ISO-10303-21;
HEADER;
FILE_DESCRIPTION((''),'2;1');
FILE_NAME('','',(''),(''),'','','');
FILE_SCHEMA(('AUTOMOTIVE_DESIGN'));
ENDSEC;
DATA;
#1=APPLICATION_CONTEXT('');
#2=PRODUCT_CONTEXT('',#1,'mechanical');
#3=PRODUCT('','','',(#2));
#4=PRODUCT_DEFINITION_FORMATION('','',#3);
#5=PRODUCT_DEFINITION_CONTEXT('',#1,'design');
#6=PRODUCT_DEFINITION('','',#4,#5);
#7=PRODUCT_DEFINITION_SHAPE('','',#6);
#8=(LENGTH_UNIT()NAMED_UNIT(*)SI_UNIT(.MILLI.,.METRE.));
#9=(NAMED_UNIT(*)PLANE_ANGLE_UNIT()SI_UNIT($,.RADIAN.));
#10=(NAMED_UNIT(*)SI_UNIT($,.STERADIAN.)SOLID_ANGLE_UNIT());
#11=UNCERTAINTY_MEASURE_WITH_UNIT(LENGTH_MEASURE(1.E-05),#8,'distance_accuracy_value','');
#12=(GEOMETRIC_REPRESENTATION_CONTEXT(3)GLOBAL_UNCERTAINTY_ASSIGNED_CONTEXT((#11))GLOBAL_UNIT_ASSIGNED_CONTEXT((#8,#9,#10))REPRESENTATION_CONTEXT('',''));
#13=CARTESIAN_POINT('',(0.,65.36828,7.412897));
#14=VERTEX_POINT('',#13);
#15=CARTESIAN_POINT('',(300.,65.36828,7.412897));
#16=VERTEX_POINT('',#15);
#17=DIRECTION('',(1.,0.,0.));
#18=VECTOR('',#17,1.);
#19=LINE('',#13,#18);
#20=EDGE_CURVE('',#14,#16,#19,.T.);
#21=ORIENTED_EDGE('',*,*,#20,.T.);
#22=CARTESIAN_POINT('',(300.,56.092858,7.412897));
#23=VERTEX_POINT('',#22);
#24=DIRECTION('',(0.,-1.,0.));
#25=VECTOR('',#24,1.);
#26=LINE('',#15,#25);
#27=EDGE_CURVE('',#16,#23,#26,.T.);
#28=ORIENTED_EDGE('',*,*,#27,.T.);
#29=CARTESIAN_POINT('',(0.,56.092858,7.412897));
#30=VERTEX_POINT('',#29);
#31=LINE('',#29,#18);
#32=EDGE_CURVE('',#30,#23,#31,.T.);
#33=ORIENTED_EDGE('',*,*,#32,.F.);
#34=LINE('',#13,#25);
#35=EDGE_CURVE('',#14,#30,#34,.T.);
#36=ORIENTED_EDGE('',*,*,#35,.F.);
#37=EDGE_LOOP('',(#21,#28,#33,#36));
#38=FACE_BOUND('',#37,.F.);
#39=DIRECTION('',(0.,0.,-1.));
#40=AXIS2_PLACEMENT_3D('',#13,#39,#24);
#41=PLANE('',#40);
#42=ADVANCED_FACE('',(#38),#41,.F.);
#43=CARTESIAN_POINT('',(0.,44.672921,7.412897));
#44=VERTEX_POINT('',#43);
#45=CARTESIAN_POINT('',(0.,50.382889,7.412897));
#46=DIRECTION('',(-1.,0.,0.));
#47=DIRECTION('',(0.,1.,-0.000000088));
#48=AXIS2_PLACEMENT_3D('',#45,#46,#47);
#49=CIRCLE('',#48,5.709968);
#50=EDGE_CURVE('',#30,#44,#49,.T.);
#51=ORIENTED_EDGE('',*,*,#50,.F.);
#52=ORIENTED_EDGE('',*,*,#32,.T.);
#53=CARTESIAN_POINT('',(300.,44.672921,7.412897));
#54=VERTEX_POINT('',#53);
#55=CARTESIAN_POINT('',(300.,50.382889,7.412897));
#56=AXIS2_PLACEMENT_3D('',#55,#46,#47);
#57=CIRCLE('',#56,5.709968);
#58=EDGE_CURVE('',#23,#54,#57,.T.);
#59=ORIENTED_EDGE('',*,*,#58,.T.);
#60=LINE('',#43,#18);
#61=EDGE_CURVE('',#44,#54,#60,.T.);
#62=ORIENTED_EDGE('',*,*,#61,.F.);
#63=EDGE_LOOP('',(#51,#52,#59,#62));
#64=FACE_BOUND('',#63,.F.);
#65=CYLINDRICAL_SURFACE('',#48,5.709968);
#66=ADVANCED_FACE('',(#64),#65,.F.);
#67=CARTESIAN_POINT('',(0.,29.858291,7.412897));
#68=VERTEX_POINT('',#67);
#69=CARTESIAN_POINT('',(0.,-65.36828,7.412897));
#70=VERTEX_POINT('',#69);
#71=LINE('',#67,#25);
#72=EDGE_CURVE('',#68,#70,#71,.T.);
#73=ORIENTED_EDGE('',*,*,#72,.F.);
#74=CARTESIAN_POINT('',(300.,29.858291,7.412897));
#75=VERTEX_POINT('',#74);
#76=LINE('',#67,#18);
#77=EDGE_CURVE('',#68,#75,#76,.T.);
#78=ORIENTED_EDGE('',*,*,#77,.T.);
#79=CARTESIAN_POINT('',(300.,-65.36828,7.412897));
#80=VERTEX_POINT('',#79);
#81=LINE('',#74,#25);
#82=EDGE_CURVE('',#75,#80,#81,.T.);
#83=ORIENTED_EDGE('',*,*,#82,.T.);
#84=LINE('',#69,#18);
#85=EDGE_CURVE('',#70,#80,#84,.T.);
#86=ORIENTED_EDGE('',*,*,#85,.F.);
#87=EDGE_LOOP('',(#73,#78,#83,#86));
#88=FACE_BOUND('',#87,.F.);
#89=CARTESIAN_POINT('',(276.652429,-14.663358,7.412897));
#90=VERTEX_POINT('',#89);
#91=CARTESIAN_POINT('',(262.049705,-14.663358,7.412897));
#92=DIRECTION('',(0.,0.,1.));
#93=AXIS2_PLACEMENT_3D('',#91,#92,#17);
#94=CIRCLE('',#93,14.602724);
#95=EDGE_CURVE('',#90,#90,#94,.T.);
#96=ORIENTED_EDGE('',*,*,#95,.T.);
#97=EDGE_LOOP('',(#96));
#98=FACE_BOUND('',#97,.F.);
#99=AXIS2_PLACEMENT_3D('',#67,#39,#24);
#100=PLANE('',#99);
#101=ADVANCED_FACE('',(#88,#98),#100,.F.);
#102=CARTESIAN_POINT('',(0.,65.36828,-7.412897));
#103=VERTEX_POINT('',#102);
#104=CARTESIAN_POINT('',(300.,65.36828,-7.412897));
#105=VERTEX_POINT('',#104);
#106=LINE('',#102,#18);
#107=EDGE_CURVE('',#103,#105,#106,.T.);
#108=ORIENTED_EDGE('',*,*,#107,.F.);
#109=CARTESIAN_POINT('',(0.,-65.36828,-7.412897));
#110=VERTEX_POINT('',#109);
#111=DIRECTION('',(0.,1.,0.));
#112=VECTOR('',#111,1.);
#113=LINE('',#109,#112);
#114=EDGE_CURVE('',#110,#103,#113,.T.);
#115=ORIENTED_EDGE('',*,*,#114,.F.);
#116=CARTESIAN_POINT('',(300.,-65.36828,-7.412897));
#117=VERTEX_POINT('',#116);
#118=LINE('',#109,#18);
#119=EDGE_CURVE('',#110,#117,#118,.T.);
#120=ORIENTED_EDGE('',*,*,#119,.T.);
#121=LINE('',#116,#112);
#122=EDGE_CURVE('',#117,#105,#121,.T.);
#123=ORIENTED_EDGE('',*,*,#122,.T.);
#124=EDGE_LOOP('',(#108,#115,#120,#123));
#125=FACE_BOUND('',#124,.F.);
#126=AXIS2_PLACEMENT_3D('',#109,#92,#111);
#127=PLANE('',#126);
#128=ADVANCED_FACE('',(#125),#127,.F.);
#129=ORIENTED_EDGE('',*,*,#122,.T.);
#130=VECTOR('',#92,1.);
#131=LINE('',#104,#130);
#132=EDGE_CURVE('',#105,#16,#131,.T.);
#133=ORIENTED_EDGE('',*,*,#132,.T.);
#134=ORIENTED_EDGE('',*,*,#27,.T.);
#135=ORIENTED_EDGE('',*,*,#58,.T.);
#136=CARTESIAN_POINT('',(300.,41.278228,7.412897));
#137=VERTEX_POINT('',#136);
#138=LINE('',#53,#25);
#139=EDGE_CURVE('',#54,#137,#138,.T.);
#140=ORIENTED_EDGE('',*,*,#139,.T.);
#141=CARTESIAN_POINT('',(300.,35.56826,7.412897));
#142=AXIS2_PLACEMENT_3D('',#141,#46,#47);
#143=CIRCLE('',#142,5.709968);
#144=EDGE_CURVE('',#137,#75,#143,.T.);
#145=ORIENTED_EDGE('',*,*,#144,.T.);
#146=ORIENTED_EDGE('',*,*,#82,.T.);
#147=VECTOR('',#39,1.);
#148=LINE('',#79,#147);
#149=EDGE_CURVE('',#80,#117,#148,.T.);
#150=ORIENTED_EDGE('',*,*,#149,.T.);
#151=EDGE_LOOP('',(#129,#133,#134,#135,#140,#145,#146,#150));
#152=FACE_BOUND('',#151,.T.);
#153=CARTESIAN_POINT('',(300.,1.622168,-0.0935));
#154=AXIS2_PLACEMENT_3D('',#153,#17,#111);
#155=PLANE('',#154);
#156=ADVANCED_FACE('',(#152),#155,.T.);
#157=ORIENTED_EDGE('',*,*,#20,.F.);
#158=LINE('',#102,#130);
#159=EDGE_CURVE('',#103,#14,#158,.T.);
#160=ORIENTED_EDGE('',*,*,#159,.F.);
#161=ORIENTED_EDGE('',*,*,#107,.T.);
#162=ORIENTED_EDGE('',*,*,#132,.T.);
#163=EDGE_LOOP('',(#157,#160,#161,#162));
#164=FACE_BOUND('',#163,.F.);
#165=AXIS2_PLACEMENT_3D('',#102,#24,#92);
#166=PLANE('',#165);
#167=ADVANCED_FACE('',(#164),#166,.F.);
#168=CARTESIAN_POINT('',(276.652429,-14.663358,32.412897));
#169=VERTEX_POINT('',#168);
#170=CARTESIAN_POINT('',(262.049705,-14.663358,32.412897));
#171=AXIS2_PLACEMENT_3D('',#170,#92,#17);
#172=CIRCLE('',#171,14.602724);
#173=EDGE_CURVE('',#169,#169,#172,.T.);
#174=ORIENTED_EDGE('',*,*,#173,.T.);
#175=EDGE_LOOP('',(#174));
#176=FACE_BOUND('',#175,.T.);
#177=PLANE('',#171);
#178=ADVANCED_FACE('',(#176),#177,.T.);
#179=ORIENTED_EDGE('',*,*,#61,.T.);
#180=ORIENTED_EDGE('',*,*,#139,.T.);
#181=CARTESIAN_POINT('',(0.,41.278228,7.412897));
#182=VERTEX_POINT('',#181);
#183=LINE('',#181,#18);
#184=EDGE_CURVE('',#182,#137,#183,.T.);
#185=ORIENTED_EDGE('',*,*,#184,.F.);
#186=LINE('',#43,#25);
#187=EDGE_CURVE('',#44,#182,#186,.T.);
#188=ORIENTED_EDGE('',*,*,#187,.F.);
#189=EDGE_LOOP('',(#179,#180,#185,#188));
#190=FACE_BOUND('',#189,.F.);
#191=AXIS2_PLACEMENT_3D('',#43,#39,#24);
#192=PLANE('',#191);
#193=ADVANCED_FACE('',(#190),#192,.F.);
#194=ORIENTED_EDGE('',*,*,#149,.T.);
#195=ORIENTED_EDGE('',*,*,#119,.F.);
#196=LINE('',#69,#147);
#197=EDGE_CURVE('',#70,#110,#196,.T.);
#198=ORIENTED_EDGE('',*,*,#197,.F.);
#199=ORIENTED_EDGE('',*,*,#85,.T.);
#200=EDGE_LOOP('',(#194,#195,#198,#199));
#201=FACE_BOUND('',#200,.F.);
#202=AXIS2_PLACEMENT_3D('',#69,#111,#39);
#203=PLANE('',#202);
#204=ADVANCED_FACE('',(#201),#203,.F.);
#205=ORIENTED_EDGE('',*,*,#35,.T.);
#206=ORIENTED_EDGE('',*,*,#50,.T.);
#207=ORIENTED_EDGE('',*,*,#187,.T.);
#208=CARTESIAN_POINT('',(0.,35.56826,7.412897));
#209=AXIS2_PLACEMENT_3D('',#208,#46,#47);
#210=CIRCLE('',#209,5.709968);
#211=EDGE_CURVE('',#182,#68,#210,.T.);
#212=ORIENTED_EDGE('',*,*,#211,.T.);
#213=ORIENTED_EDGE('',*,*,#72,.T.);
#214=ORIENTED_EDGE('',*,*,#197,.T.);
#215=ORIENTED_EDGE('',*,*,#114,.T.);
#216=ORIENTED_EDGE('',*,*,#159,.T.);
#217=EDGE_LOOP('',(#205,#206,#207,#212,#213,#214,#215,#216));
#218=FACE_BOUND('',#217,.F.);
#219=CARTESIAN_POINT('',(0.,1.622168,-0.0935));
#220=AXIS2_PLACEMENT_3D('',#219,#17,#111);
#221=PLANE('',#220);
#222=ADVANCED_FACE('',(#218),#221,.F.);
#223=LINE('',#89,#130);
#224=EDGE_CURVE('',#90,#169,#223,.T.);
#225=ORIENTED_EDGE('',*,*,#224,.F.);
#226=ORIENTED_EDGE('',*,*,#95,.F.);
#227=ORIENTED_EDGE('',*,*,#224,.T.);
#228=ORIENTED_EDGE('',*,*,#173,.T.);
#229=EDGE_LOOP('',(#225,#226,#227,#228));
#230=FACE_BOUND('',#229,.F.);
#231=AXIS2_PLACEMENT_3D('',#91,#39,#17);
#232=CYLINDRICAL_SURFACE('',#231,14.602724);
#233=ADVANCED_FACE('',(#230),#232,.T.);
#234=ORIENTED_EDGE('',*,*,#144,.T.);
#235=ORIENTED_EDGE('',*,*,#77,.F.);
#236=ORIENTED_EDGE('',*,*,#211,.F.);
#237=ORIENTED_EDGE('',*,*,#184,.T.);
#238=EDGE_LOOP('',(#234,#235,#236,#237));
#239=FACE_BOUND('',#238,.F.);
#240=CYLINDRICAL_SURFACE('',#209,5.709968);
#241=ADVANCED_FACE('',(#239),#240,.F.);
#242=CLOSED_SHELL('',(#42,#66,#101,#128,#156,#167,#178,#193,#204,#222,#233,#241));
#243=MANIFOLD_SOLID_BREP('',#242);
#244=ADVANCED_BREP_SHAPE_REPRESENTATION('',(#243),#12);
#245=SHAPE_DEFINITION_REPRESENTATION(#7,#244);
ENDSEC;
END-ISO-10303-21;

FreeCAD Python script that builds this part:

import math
import FreeCAD as App
import Part
import Sketcher

V = App.Vector

doc = App.newDocument("Part")
body = doc.addObject("PartDesign::Body", "Body")

sketch1 = doc.addObject("Sketcher::SketchObject", "Sketch")
body.addObject(sketch1)
sketch1.AttachmentSupport = (doc.YZ_Plane, [""])
sketch1.MapMode = "FlatFace"
sketch1.addGeometry([
    Part.LineSegment(V(29.858291, 7.412897, 0), V(-65.36828, 7.412897, 0)),
    Part.LineSegment(V(-65.36828, 7.412897, 0), V(-65.36828, -7.412897, 0)),
    Part.LineSegment(V(-65.36828, -7.412897, 0), V(65.36828, -7.412897, 0)),
    Part.LineSegment(V(65.36828, -7.412897, 0), V(65.36828, 7.412897, 0)),
    Part.LineSegment(V(65.36828, 7.412897, 0), V(56.092858, 7.412897, 0)),
    Part.ArcOfCircle(Part.Circle(V(50.382889, 7.412897, 0), V(0, 0, 1), 5.709968), math.radians(-179.999995), math.radians(-0.000005)),
    Part.LineSegment(V(44.672921, 7.412897, 0), V(41.278228, 7.412897, 0)),
    Part.ArcOfCircle(Part.Circle(V(35.56826, 7.412897, 0), V(0, 0, 1), 5.709968), math.radians(-179.999995), math.radians(-0.000005)),
], False)
sketch1.addConstraint([
    Sketcher.Constraint("Coincident", 0, 2, 1, 1),
    Sketcher.Constraint("Coincident", 1, 2, 2, 1),
    Sketcher.Constraint("Coincident", 2, 2, 3, 1),
    Sketcher.Constraint("Coincident", 3, 2, 4, 1),
    Sketcher.Constraint("Coincident", 4, 2, 5, 2),
    Sketcher.Constraint("Coincident", 5, 1, 6, 1),
    Sketcher.Constraint("Coincident", 6, 2, 7, 2),
    Sketcher.Constraint("Coincident", 7, 1, 0, 1),
    Sketcher.Constraint("Horizontal", 0),
    Sketcher.Constraint("Vertical", 1),
    Sketcher.Constraint("Horizontal", 2),
    Sketcher.Constraint("Vertical", 3),
    Sketcher.Constraint("Horizontal", 4),
    Sketcher.Constraint("Horizontal", 6),
    Sketcher.Constraint("Equal", 5, 7),
    Sketcher.Constraint("Symmetric", 0, 2, 2, 2, -1, 1),
    Sketcher.Constraint("Horizontal", 5, 3, 7, 3),
    Sketcher.Constraint("Horizontal", 7, 3, 0, 2),
    Sketcher.Constraint("Horizontal", 0, 2, 3, 2),
    Sketcher.Constraint("Horizontal", 4, 2, 5, 1),
    Sketcher.Constraint("Radius", 5, 5.709968),
    Sketcher.Constraint("DistanceX", 0, 2, 0, 1, 95.226571),
    Sketcher.Constraint("DistanceX", 2, 1, 2, 2, 130.73656),
    Sketcher.Constraint("DistanceX", 4, 2, 4, 1, 9.275422),
    Sketcher.Constraint("DistanceY", 1, 2, 1, 1, 14.825794),
])
pad1 = doc.addObject("PartDesign::Pad", "Pad")
body.addObject(pad1)
pad1.Profile = sketch1
pad1.Length = 300

sketch2 = doc.addObject("Sketcher::SketchObject", "Sketch001")
body.addObject(sketch2)
sketch2.AttachmentSupport = (doc.XY_Plane, [""])
sketch2.MapMode = "FlatFace"
sketch2.AttachmentOffset = App.Placement(V(0, 0, 7.412897), App.Rotation())
sketch2.addGeometry(Part.Circle(V(262.049705, -14.663358, 0), V(0, 0, 1), 14.602724), False)
sketch2.addConstraint([
    Sketcher.Constraint("Diameter", 0, 29.205448),
    Sketcher.Constraint("DistanceX", -1, 1, 0, 3, 262.049705),
    Sketcher.Constraint("DistanceY", 0, 3, -1, 1, 14.663358),
])
pad2 = doc.addObject("PartDesign::Pad", "Pad001")
body.addObject(pad2)
pad2.Profile = sketch2
pad2.Length = 25

doc.recompute()
